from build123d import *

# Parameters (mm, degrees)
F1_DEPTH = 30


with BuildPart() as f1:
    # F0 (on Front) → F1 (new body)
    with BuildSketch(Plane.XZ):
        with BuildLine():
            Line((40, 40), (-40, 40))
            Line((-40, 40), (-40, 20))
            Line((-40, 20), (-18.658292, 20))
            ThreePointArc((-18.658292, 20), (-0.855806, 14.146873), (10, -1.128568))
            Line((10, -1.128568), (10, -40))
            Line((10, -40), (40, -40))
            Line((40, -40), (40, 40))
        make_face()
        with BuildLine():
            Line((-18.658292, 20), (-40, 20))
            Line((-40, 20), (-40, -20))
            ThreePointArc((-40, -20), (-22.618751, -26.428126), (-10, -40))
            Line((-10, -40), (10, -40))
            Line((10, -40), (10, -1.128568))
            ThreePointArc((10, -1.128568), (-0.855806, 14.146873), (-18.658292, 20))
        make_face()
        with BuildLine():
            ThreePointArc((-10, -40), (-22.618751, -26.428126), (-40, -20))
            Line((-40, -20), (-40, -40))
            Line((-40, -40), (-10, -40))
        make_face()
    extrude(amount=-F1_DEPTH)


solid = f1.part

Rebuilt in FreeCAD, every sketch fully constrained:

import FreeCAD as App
import Part
import Sketcher

V = App.Vector


def add_polygon(sketch, points):
    """Adds a closed chain of lines whose ends are joined by coincident constraints."""
    first, n = sketch.GeometryCount, len(points)
    for a, b in zip(points, points[1:] + points[:1]):
        sketch.addGeometry(Part.LineSegment(App.Vector(*a, 0), App.Vector(*b, 0)), False)
    for i in range(n):
        sketch.addConstraint(Sketcher.Constraint("Coincident", first + i, 2, first + (i + 1) % n, 1))

doc = App.newDocument("Part")
params = doc.addObject("Spreadsheet::Sheet", "Params")
for row, (alias, value) in enumerate([
    ("sketch1_width", "80 mm"),
    ("pad1_length", "30 mm"),
], start=1):
    params.set(f"A{row}", alias)
    params.set(f"B{row}", "=" + value)
    params.setAlias(f"B{row}", alias)

body = doc.addObject("PartDesign::Body", "Body")

# Sketch on XZ plane
sketch1 = body.newObject("Sketcher::SketchObject", "Sketch")
sketch1.AttachmentSupport = (doc.getObject("XZ_Plane"), [""])
sketch1.MapMode = "FlatFace"
add_polygon(sketch1, [(40, 40), (-40, 40), (-40, -40), (40, -40)])  # lines 0-3
sketch1.addConstraint([
    Sketcher.Constraint("Horizontal", 0),
    Sketcher.Constraint("Vertical", 1),
    Sketcher.Constraint("Horizontal", 2),
    Sketcher.Constraint("Vertical", 3),
    Sketcher.Constraint("Symmetric", 0, 2, 2, 2, -1, 1),
    Sketcher.Constraint("Equal", 2, 1),
    Sketcher.Constraint("DistanceX", 0, 2, 0, 1, 80.0),
])
sketch1.setExpression("Constraints[10]", "Params.sketch1_width")
pad1 = body.newObject("PartDesign::Pad", "Pad")
pad1.Profile = sketch1
pad1.setExpression("Length", "Params.pad1_length")
pad1.Reversed = True

doc.recompute()
